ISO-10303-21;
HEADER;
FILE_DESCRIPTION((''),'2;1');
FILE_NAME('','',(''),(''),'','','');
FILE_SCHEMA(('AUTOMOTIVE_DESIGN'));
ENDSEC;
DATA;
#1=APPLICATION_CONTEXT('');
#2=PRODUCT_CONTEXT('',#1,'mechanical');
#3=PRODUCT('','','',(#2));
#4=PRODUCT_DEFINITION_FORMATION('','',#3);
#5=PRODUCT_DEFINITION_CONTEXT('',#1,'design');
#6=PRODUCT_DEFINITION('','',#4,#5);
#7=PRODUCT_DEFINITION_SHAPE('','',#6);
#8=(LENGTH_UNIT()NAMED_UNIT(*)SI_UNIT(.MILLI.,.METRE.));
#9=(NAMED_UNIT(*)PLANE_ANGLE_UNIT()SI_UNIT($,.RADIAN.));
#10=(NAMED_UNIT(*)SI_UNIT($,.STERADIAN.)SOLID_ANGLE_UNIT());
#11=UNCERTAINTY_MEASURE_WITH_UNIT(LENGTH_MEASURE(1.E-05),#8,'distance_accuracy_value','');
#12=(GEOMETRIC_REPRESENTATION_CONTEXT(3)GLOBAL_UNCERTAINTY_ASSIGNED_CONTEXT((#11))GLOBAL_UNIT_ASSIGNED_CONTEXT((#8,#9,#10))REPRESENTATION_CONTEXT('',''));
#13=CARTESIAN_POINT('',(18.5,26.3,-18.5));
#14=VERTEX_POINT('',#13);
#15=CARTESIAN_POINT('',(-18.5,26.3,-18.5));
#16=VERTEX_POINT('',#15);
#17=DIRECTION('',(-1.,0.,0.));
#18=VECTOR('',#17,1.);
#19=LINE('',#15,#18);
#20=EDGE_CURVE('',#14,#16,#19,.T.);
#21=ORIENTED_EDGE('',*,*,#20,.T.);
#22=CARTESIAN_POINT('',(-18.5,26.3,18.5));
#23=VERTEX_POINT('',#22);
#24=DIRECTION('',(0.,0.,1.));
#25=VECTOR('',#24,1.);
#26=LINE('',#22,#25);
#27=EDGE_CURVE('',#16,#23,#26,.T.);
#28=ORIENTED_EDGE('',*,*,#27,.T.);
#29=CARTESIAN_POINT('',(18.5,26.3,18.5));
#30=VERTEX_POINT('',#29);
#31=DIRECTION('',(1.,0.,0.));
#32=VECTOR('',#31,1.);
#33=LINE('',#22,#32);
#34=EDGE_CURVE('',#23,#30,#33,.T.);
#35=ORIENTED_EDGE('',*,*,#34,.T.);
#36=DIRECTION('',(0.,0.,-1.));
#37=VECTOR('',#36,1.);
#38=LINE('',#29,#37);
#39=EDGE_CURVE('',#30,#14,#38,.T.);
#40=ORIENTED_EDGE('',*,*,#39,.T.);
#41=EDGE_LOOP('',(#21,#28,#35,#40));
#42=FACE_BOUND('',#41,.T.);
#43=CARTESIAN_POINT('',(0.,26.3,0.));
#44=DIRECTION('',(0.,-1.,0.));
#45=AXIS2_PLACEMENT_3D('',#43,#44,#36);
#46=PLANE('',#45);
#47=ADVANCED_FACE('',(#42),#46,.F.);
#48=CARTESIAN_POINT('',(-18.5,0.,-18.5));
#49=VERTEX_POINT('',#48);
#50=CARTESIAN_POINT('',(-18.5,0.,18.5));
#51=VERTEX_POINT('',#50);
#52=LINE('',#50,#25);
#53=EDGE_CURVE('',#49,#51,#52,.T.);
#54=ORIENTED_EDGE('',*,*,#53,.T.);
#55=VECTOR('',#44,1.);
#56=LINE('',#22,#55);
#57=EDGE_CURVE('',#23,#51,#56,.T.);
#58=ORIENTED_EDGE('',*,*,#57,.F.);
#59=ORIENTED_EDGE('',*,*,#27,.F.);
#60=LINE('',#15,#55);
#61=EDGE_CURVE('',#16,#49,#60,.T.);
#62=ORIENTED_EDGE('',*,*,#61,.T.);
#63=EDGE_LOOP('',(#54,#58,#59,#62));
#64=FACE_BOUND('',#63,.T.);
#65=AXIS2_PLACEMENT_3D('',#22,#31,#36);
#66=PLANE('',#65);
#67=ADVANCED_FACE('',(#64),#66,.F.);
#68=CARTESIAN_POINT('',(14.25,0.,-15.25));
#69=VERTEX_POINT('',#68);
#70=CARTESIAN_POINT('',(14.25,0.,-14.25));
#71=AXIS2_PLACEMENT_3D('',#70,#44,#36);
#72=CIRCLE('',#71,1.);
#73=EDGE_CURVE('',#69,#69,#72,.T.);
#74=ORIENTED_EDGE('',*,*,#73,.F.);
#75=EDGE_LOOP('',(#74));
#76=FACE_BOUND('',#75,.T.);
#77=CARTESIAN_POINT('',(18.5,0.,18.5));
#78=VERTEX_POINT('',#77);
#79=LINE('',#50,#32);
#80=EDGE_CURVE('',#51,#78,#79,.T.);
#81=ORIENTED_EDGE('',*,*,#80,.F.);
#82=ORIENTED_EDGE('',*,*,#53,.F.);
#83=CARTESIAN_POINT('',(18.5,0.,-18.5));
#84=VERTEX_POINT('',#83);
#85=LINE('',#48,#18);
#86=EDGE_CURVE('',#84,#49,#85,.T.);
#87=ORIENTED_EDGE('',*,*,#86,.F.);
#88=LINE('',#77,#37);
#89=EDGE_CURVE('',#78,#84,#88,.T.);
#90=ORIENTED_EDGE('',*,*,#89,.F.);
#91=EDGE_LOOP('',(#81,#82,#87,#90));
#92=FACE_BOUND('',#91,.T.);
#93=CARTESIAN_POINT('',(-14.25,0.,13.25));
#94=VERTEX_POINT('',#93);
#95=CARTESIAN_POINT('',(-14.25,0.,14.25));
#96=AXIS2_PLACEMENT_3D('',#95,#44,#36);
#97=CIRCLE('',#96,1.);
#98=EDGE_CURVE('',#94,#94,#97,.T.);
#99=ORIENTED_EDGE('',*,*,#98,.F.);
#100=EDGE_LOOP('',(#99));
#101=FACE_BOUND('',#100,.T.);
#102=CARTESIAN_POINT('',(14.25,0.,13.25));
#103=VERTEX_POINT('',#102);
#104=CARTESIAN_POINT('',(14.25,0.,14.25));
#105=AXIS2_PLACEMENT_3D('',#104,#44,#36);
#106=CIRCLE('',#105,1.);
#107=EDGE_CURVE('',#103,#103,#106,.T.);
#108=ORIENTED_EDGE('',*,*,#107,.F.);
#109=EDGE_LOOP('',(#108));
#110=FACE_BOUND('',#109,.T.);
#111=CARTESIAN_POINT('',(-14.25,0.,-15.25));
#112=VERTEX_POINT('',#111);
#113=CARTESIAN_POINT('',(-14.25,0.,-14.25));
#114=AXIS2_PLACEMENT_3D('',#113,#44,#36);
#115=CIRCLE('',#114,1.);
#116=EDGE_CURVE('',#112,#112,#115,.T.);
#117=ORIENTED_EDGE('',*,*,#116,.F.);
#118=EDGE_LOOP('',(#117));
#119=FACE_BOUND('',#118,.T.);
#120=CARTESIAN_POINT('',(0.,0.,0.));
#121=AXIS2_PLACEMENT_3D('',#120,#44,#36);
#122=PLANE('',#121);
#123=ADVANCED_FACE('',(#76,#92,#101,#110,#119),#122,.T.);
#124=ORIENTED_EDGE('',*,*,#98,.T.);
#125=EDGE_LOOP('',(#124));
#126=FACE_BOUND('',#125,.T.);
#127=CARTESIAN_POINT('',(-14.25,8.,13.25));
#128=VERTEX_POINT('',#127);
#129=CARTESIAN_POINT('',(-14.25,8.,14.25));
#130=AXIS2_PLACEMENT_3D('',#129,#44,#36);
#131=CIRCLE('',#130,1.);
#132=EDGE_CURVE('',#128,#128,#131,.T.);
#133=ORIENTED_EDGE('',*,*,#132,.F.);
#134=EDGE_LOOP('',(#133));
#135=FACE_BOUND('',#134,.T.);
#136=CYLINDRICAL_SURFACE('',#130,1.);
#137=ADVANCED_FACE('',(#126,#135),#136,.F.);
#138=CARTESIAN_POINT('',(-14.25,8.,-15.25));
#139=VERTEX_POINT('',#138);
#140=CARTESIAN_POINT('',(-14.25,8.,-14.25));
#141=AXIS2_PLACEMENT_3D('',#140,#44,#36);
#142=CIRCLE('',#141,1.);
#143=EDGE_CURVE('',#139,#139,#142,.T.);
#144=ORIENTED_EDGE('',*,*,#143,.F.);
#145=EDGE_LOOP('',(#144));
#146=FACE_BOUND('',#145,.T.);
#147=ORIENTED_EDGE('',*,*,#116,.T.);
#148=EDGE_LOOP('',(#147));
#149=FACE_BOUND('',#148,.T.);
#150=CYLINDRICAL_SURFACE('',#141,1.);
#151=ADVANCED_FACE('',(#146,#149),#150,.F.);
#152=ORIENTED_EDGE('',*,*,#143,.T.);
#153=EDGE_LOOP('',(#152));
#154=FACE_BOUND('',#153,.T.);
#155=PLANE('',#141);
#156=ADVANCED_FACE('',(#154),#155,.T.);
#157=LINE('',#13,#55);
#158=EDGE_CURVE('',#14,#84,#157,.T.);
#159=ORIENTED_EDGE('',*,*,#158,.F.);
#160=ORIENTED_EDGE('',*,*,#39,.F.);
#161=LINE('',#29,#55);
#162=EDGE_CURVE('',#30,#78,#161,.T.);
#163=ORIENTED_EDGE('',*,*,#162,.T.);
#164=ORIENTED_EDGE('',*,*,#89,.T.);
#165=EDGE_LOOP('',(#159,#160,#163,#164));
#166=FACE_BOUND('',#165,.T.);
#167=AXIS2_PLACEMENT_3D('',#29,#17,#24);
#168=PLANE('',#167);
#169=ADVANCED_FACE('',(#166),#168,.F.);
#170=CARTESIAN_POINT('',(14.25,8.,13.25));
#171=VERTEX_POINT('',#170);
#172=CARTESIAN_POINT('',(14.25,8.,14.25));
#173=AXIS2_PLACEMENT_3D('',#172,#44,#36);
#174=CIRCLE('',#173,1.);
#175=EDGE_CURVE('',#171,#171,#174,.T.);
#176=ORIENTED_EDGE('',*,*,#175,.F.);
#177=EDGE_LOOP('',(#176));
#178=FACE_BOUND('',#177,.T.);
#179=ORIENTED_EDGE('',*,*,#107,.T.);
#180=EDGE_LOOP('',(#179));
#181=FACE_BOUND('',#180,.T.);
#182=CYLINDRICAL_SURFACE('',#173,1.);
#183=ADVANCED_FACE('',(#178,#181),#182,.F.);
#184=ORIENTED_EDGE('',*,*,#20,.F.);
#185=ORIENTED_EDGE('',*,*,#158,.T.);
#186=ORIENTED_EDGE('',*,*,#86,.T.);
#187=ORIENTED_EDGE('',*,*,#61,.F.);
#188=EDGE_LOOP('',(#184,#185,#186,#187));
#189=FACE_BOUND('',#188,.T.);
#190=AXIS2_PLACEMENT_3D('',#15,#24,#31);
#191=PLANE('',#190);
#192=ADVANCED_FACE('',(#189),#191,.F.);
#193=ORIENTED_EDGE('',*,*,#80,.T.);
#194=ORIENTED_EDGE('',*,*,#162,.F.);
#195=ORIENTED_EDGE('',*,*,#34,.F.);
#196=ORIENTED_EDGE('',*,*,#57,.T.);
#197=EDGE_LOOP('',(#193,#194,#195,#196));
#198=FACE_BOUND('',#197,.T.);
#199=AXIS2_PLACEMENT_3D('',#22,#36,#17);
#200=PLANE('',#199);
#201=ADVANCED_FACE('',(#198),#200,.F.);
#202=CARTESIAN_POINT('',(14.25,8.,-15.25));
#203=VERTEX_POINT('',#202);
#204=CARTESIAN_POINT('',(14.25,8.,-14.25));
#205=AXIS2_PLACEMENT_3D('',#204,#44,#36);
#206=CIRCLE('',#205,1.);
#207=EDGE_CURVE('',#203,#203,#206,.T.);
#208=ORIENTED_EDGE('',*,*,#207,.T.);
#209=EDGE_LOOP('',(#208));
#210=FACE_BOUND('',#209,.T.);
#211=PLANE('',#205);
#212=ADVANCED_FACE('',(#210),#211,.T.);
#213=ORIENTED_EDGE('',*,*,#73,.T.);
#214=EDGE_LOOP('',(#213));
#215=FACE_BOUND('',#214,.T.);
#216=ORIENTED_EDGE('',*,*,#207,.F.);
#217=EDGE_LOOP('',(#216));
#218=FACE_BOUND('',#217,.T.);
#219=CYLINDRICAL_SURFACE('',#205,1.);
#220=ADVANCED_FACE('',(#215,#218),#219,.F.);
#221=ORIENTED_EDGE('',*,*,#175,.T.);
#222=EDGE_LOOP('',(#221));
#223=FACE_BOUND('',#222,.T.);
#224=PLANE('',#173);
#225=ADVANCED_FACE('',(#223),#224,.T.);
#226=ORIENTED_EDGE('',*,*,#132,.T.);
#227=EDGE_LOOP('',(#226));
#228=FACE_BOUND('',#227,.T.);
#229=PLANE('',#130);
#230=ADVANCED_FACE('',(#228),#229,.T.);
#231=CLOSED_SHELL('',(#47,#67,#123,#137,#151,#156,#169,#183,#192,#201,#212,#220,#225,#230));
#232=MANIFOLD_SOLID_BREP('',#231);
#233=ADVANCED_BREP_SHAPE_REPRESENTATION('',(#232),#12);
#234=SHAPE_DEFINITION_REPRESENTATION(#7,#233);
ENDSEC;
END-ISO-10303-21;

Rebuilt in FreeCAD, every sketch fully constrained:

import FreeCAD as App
import Part
import Sketcher
from FreeCAD import Vector

doc = App.newDocument("Part")
body = doc.addObject("PartDesign::Body", "Body")

# Sketch on XZ plane
sketch1 = body.newObject("Sketcher::SketchObject", "Sketch")
sketch1.AttachmentSupport = (doc.getObject("XZ_Plane"), [""])
sketch1.MapMode = "FlatFace"
sketch1.addGeometry([
    Part.LineSegment(Vector(-18.5, -18.5, 0), Vector(-18.5, 18.5, 0)),
    Part.LineSegment(Vector(-18.5, 18.5, 0), Vector(18.5, 18.5, 0)),
    Part.LineSegment(Vector(18.5, 18.5, 0), Vector(18.5, -18.5, 0)),
    Part.LineSegment(Vector(18.5, -18.5, 0), Vector(-18.5, -18.5, 0)),
], False)
sketch1.addConstraint([
    Sketcher.Constraint("Coincident", 0, 2, 1, 1),
    Sketcher.Constraint("Coincident", 1, 2, 2, 1),
    Sketcher.Constraint("Coincident", 2, 2, 3, 1),
    Sketcher.Constraint("Coincident", 3, 2, 0, 1),
    Sketcher.Constraint("Vertical", 0),
    Sketcher.Constraint("Horizontal", 1),
    Sketcher.Constraint("Vertical", 2),
    Sketcher.Constraint("Horizontal", 3),
    Sketcher.Constraint("Symmetric", 0, 2, 2, 2, -1, 1),
    Sketcher.Constraint("Equal", 3, 0),
    Sketcher.Constraint("DistanceX", 1, 1, 1, 2, 37.0),
])
pad1 = body.newObject("PartDesign::Pad", "Pad")
pad1.Profile = sketch1
pad1.Length = 26.3
pad1.Reversed = True

# Sketch on XZ plane
sketch2 = body.newObject("Sketcher::SketchObject", "Sketch001")
sketch2.AttachmentSupport = (doc.getObject("XZ_Plane"), [""])
sketch2.MapMode = "FlatFace"
sketch2.addGeometry([
    Part.Circle(Vector(-14.25, 14.25, 0), Vector(0, 0, 1), 1),
    Part.Circle(Vector(14.25, 14.25, 0), Vector(0, 0, 1), 1),
    Part.Circle(Vector(14.25, -14.25, 0), Vector(0, 0, 1), 1),
    Part.Circle(Vector(-14.25, -14.25, 0), Vector(0, 0, 1), 1),
], False)
sketch2.addConstraint([
    Sketcher.Constraint("Equal", 0, 1),
    Sketcher.Constraint("Equal", 1, 2),
    Sketcher.Constraint("Equal", 2, 3),
    Sketcher.Constraint("Symmetric", 0, 3, 2, 3, -1, 1),
    Sketcher.Constraint("Symmetric", 1, 3, 3, 3, -1, 1),
    Sketcher.Constraint("Symmetric", 0, 3, 1, 3, -2),
    Sketcher.Constraint("Diameter", 0, 2.0),
    Sketcher.Constraint("DistanceX", 0, 3, 1, 3, 28.5),
    Sketcher.Constraint("DistanceY", 2, 3, 1, 3, 28.5),
])
pocket1 = body.newObject("PartDesign::Pocket", "Pocket")
pocket1.Profile = sketch2
pocket1.Length = 8

doc.recompute()
